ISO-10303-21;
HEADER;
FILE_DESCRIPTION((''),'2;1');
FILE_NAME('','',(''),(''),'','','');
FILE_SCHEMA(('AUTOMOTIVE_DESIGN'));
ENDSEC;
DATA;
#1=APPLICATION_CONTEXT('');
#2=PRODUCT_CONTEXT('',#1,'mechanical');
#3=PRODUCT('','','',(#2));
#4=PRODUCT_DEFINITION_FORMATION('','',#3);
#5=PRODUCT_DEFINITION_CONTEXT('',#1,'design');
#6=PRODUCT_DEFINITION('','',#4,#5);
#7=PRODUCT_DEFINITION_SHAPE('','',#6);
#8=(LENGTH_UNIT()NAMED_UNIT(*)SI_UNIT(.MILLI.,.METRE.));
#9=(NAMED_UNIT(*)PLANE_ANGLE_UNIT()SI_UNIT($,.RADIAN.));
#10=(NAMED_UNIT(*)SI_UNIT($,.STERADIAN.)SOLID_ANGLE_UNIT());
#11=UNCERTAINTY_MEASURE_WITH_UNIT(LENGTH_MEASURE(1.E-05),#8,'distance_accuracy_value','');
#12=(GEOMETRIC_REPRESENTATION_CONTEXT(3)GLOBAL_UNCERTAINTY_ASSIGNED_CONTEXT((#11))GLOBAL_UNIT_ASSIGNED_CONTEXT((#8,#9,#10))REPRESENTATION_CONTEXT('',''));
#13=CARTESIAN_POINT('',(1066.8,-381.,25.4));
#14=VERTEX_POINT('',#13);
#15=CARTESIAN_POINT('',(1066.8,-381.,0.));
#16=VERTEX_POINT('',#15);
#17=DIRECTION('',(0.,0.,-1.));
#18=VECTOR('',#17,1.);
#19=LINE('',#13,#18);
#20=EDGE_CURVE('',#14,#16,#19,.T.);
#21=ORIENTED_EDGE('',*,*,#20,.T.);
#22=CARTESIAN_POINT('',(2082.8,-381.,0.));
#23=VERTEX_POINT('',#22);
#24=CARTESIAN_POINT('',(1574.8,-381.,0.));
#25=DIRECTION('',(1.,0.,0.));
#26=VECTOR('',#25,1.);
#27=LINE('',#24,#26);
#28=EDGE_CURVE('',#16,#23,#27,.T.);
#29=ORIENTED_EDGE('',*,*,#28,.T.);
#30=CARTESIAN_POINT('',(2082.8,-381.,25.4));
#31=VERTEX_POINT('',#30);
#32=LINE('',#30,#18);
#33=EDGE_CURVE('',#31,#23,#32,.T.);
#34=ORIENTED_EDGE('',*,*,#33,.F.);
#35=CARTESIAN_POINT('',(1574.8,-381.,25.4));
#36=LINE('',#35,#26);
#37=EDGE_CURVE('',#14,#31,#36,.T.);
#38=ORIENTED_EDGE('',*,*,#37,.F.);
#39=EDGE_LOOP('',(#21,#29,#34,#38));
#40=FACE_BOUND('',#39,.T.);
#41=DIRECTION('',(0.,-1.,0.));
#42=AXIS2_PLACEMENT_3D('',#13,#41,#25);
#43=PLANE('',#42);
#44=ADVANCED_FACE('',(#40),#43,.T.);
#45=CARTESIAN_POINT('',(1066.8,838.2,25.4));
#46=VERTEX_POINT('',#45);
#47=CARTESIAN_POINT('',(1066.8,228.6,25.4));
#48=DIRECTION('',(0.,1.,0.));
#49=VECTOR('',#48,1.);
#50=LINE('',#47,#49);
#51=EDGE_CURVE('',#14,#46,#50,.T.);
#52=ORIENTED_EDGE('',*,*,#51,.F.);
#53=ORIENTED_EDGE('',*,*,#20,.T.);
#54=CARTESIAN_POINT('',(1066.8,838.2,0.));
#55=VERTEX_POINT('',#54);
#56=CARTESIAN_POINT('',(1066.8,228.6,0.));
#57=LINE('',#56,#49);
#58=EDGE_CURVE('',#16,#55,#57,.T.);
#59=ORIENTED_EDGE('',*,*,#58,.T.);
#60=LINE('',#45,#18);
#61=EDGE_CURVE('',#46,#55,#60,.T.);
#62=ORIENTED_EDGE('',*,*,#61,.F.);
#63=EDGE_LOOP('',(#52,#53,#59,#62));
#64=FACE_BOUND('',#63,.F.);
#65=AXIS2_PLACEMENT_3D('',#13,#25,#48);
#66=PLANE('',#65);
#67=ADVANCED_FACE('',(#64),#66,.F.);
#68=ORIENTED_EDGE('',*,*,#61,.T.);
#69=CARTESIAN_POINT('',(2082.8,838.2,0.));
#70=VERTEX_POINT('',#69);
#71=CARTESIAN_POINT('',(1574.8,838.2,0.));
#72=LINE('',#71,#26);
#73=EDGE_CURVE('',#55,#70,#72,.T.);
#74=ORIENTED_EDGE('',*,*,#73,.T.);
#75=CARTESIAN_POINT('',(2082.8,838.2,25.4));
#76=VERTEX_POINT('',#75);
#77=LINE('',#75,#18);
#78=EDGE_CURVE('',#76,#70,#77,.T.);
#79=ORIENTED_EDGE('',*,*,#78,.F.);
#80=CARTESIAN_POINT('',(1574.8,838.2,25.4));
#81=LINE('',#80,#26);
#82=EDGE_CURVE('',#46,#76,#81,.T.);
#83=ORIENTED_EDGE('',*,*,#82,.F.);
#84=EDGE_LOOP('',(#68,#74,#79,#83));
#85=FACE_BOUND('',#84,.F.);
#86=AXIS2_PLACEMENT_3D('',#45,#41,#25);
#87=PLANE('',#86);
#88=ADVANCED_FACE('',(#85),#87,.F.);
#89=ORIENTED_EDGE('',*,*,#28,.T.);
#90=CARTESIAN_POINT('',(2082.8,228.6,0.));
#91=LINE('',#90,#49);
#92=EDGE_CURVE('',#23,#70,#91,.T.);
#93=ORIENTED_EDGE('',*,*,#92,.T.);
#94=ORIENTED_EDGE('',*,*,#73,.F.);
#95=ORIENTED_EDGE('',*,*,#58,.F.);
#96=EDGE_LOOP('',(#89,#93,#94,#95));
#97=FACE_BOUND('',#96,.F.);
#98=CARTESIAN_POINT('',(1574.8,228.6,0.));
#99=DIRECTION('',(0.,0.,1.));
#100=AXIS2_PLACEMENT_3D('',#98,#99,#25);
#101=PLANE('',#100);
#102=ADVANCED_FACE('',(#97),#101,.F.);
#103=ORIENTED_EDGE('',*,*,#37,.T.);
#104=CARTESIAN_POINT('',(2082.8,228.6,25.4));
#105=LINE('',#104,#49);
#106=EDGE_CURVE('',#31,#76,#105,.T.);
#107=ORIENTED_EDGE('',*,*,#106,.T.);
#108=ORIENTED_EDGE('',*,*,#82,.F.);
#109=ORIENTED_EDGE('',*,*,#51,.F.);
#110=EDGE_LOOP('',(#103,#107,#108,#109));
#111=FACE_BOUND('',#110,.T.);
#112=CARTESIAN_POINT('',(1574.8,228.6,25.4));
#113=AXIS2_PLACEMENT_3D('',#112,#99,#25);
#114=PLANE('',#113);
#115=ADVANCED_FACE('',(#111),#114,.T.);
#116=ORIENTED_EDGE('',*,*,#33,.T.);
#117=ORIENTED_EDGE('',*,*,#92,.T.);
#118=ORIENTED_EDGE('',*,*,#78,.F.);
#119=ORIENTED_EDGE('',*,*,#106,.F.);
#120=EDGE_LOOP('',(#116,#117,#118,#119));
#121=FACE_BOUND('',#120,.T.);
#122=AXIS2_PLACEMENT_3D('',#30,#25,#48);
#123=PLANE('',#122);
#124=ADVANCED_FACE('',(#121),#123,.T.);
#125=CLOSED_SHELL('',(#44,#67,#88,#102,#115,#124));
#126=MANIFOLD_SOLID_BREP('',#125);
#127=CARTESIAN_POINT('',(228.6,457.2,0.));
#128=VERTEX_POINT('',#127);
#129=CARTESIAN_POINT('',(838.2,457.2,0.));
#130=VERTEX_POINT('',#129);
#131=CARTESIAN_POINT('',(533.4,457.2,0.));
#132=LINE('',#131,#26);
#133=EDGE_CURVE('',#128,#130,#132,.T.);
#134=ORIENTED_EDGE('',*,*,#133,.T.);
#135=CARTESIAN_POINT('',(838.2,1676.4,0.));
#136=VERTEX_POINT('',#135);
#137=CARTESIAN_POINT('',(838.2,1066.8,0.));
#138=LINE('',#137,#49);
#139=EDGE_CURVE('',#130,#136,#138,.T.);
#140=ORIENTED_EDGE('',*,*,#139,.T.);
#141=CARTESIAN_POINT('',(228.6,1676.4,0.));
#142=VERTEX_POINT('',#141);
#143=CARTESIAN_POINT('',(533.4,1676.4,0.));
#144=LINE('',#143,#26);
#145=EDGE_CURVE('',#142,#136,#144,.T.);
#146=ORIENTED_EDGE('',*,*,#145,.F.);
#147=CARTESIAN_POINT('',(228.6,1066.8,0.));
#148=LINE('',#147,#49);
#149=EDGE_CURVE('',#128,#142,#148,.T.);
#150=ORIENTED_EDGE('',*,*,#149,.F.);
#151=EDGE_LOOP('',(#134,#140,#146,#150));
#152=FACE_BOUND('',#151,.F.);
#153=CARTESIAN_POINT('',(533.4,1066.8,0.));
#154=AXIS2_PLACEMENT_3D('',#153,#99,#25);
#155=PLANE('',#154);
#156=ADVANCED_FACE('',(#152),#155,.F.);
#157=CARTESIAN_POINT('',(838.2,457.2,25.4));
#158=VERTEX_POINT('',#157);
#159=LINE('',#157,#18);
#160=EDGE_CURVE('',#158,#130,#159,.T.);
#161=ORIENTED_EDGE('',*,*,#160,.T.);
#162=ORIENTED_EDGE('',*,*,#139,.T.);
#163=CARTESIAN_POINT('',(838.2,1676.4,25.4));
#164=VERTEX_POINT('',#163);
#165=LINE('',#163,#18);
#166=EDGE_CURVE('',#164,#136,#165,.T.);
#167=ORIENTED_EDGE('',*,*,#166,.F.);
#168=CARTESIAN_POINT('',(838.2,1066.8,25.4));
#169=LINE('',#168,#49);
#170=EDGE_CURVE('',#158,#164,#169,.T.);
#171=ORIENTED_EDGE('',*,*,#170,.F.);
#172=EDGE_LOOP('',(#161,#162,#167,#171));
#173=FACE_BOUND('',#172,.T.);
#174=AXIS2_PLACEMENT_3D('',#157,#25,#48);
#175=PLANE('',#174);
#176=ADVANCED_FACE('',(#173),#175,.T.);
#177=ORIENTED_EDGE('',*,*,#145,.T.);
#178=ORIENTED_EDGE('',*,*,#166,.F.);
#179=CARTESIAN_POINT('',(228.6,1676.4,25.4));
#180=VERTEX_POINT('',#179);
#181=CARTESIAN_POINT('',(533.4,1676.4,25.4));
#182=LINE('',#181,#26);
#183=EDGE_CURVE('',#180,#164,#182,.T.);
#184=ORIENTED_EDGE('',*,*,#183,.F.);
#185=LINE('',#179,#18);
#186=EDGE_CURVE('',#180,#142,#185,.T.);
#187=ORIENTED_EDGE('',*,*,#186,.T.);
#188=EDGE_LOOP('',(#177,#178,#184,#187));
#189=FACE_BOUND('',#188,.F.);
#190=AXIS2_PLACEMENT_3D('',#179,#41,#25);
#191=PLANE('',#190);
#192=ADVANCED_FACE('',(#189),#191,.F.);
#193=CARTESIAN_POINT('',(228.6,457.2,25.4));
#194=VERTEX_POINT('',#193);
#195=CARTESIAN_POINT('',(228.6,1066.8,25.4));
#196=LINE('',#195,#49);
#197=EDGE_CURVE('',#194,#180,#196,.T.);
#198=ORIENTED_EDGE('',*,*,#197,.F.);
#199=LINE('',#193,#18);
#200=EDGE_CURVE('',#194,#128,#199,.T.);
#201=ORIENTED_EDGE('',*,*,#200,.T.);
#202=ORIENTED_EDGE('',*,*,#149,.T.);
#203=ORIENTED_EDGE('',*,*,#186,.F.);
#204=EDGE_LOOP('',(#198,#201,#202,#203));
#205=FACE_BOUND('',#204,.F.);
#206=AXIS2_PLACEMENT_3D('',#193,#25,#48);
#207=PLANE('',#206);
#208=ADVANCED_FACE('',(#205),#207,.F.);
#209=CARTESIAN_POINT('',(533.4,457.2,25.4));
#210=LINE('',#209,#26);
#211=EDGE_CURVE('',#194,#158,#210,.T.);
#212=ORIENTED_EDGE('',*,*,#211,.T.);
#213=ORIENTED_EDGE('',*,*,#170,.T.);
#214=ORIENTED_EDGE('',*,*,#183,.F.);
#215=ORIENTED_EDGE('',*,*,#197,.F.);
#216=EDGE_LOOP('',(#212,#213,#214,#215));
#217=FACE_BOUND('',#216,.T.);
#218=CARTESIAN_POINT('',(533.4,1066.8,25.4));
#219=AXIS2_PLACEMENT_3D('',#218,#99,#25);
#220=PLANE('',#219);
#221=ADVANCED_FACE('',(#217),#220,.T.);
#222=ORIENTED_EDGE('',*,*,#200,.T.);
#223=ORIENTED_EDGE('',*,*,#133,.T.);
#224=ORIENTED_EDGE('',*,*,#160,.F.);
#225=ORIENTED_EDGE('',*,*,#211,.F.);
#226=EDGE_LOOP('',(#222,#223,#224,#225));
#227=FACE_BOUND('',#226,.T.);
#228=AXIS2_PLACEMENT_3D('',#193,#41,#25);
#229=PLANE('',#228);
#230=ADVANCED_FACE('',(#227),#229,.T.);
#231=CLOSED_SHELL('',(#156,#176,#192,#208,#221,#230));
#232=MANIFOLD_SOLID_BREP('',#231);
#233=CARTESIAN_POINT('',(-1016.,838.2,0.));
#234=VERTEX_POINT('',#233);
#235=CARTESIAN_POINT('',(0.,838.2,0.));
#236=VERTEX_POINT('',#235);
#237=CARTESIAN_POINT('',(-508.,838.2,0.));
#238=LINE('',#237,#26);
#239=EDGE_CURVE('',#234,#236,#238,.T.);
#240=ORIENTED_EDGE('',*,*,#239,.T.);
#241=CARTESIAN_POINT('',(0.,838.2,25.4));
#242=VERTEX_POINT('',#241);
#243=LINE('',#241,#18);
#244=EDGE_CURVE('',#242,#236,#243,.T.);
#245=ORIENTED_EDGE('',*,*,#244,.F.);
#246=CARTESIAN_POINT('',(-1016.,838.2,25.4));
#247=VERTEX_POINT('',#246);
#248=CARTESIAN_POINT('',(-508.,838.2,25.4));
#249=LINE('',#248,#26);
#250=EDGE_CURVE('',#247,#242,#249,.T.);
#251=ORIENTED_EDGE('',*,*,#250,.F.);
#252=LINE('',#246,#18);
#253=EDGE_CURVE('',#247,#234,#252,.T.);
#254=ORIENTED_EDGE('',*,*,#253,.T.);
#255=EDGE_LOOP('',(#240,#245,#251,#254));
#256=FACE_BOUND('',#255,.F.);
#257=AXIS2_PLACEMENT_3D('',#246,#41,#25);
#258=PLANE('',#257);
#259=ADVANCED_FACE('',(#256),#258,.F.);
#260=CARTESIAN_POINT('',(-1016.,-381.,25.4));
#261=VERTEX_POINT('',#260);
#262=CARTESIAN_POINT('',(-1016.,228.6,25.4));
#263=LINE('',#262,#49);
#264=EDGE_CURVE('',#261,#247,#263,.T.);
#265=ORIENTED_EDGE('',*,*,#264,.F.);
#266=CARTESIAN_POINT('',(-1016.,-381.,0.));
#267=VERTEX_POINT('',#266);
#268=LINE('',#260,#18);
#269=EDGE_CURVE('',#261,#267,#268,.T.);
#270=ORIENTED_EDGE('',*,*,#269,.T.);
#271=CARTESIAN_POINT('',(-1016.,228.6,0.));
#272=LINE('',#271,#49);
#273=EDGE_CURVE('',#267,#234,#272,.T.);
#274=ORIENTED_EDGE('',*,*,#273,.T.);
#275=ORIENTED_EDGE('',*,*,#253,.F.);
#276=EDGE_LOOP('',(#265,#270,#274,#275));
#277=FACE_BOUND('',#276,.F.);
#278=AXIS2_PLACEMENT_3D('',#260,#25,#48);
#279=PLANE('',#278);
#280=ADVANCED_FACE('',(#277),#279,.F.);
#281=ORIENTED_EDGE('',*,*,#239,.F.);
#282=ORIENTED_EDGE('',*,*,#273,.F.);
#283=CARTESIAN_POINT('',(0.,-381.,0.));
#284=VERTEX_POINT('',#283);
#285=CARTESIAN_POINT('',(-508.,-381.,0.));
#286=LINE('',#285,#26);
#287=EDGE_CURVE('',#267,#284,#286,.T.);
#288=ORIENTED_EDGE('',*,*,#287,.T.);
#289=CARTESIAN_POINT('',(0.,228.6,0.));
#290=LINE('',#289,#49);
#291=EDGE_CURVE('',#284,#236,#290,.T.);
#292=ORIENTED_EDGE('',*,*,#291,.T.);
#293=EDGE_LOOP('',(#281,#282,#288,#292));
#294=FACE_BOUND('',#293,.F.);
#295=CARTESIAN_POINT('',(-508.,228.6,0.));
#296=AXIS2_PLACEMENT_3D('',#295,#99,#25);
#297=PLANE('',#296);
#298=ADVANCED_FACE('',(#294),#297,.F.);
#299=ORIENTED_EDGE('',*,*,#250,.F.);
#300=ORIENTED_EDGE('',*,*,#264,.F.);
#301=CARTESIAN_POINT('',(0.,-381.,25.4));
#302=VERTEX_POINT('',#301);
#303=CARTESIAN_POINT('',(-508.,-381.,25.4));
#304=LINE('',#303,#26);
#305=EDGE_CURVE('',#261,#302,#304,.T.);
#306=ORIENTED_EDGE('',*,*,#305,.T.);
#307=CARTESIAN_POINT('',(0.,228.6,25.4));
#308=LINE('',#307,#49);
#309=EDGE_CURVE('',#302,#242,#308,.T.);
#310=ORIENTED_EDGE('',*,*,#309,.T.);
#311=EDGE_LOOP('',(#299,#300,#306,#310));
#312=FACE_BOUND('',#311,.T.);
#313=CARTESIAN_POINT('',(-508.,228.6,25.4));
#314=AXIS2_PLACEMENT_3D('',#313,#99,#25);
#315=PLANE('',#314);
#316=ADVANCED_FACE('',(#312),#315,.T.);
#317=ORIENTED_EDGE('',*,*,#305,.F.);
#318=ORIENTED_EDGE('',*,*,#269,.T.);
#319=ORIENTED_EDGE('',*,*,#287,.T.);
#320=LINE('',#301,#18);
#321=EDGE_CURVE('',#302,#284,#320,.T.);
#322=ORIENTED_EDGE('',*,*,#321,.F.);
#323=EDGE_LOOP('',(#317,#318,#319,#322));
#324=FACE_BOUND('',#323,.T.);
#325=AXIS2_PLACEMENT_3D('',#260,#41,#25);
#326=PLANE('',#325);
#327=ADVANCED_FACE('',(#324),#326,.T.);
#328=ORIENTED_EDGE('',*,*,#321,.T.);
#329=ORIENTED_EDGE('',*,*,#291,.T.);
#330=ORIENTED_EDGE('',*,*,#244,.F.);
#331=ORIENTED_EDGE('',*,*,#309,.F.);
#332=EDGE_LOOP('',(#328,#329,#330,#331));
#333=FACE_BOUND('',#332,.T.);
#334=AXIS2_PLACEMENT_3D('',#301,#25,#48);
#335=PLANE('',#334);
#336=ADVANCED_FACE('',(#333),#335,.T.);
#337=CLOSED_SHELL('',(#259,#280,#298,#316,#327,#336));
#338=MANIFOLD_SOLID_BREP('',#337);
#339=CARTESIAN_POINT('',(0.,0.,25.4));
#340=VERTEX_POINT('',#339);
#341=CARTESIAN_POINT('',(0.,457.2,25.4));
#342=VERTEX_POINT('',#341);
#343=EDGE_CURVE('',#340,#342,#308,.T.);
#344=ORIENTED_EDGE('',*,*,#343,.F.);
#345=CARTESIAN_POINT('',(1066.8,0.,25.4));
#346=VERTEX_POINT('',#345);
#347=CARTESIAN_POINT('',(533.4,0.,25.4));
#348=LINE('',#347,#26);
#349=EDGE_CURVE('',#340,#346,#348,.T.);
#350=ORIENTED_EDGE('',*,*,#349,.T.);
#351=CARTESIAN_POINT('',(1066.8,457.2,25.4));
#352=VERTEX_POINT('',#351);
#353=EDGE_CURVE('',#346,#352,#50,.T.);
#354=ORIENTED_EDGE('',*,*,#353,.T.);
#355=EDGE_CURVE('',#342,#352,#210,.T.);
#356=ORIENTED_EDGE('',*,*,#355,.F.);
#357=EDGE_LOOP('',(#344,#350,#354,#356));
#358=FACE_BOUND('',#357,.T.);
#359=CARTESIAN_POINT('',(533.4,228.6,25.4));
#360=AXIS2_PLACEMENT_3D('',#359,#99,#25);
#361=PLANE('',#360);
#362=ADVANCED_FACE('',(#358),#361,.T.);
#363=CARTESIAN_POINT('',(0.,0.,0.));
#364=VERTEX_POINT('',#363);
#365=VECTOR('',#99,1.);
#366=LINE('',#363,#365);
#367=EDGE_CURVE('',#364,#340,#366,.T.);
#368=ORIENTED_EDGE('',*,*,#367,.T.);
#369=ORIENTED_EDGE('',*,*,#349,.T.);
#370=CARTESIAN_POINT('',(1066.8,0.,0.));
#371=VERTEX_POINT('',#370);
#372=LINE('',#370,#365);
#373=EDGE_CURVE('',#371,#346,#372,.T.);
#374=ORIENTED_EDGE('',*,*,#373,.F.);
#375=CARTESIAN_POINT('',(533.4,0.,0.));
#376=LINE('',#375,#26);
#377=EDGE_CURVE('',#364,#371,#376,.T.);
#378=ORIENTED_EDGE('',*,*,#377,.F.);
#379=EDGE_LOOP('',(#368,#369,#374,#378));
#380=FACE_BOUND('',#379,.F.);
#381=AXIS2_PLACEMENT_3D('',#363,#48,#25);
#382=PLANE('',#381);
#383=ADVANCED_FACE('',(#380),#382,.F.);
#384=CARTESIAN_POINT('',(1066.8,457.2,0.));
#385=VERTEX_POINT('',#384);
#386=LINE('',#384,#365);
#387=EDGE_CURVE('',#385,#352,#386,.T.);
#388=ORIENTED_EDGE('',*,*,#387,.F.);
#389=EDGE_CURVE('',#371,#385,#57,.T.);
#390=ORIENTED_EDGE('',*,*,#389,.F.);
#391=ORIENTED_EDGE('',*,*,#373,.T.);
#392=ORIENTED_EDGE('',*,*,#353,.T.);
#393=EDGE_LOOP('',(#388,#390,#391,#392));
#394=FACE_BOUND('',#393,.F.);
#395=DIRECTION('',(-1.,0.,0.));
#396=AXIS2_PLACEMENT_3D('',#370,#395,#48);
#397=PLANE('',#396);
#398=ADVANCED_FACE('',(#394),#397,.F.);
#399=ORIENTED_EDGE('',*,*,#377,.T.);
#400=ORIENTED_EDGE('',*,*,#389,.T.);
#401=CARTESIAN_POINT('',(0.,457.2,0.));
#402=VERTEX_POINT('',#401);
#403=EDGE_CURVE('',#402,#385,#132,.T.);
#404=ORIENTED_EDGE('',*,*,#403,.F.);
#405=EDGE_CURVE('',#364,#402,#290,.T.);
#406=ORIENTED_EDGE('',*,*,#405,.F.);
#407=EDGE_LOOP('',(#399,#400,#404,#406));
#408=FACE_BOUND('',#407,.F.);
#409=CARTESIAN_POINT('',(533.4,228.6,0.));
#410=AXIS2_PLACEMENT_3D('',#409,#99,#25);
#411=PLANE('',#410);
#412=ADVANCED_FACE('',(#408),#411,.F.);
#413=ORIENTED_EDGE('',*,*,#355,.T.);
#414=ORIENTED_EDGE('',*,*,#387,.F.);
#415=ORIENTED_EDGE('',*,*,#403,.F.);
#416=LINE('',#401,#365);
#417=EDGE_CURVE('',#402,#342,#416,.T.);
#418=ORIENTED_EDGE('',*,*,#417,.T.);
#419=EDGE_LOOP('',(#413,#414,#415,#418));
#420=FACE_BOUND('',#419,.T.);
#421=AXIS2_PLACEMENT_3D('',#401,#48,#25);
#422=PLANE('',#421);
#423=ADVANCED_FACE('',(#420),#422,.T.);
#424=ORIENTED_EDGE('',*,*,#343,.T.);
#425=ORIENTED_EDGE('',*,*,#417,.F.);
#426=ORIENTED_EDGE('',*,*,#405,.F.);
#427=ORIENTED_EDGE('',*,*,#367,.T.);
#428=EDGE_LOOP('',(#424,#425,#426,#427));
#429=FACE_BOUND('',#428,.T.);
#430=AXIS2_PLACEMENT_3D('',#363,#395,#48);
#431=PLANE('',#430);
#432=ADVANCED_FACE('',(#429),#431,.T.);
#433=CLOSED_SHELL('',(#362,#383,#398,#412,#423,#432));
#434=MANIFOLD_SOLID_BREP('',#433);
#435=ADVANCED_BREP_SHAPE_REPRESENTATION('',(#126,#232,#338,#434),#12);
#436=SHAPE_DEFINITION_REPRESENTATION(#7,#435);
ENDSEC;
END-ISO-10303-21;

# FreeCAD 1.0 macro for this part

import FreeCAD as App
import Part
import Sketcher

V = App.Vector
Q = App.Units.Quantity


def add_polygon(sketch, points):
    """Adds a closed chain of lines whose ends are joined by coincident constraints."""
    first, n = sketch.GeometryCount, len(points)
    for a, b in zip(points, points[1:] + points[:1]):
        sketch.addGeometry(Part.LineSegment(App.Vector(*a, 0), App.Vector(*b, 0)), False)
    for i in range(n):
        sketch.addConstraint(Sketcher.Constraint("Coincident", first + i, 2, first + (i + 1) % n, 1))

doc = App.newDocument("Part")
params = doc.addObject("Spreadsheet::Sheet", "Params")
for row, (alias, value) in enumerate([
    ("sketch1_width", "42 in"),
    ("sketch1_height", "18 in"),
    ("pad1_length", "1 in"),
    ("sketch2_width", "40 in"),
    ("sketch2_height", "48 in"),
    ("pad2_length", "1 in"),
    ("sketch3_width", "24 in"),
    ("sketch3_height", "48 in"),
    ("pad3_length", "1 in"),
], start=1):
    params.set(f"A{row}", alias)
    params.set(f"B{row}", "=" + value)
    params.setAlias(f"B{row}", alias)

body = doc.addObject("PartDesign::Body", "Body")

sketch1 = body.newObject("Sketcher::SketchObject", "Sketch")
sketch1.AttachmentSupport = (doc.getObject("XY_Plane"), [""])
sketch1.MapMode = "FlatFace"
add_polygon(sketch1, [(0, 457), (0, 0), (1067, 0), (1067, 457)])
sketch1.addConstraint([
    Sketcher.Constraint("Vertical", 0),
    Sketcher.Constraint("Horizontal", 1),
    Sketcher.Constraint("Vertical", 2),
    Sketcher.Constraint("Horizontal", 3),
    Sketcher.Constraint("Coincident", 0, 2, -1, 1),
    Sketcher.Constraint("DistanceX", 1, 1, 1, 2, Q("42 in")),
    Sketcher.Constraint("DistanceY", 0, 2, 0, 1, Q("18 in")),
])
sketch1.setExpression("Constraints[9]", "Params.sketch1_width")
sketch1.setExpression("Constraints[10]", "Params.sketch1_height")
pad1 = body.newObject("PartDesign::Pad", "Pad")
pad1.Profile = sketch1
pad1.setExpression("Length", "Params.pad1_length")
body2 = doc.addObject("PartDesign::Body", "Body001")
body2.AllowCompound = True

sketch2 = body2.newObject("Sketcher::SketchObject", "Sketch001")
sketch2.AttachmentSupport = (doc.getObject("XY_Plane001"), [""])
sketch2.MapMode = "FlatFace"
sketch2.AttachmentOffset = App.Placement(V(0, 0, 1 * 25.4), App.Rotation())
add_polygon(sketch2, [(-1016, 838), (-1016, -381), (0, -381), (0, 838)])
add_polygon(sketch2, [(1067, 838), (1067, -381), (2083, -381), (2083, 838)])
sketch2.addConstraint([
    Sketcher.Constraint("Vertical", 0),
    Sketcher.Constraint("Horizontal", 1),
    Sketcher.Constraint("Vertical", 2),
    Sketcher.Constraint("Horizontal", 3),
    Sketcher.Constraint("Vertical", 4),
    Sketcher.Constraint("Horizontal", 5),
    Sketcher.Constraint("Vertical", 6),
    Sketcher.Constraint("Horizontal", 7),
    Sketcher.Constraint("PointOnObject", 1, 2, -2),
    Sketcher.Constraint("Horizontal", 1, 2, 4, 2),
    Sketcher.Constraint("Horizontal", 3, 2, 6, 2),
    Sketcher.Constraint("Equal", 3, 5),
    Sketcher.Constraint("DistanceX", 1, 1, 1, 2, Q("40 in")),
    Sketcher.Constraint("DistanceY", 0, 2, 0, 1, Q("48 in")),
    Sketcher.Constraint("DistanceY", 0, 2, -1, 1, Q("15 in")),
    Sketcher.Constraint("DistanceX", -1, 1, 4, 2, Q("42 in")),
])
sketch2.setExpression("Constraints[20]", "Params.sketch2_width")
sketch2.setExpression("Constraints[21]", "Params.sketch2_height")
pad2 = body2.newObject("PartDesign::Pad", "Pad001")
pad2.Profile = sketch2
pad2.setExpression("Length", "Params.pad2_length")
pad2.Reversed = True
body3 = doc.addObject("PartDesign::Body", "Body002")

sketch3 = body3.newObject("Sketcher::SketchObject", "Sketch002")
sketch3.AttachmentSupport = (doc.getObject("XY_Plane002"), [""])
sketch3.MapMode = "FlatFace"
sketch3.AttachmentOffset = App.Placement(V(0, 0, 1 * 25.4), App.Rotation())
add_polygon(sketch3, [(229, 1676), (229, 457), (838, 457), (838, 1676)])
sketch3.addConstraint([
    Sketcher.Constraint("Vertical", 0),
    Sketcher.Constraint("Horizontal", 1),
    Sketcher.Constraint("Vertical", 2),
    Sketcher.Constraint("Horizontal", 3),
    Sketcher.Constraint("DistanceX", 1, 1, 1, 2, Q("24 in")),
    Sketcher.Constraint("DistanceY", 0, 2, 0, 1, Q("48 in")),
    Sketcher.Constraint("DistanceX", -1, 1, 0, 2, Q("9 in")),
    Sketcher.Constraint("DistanceY", -1, 1, 0, 2, Q("18 in")),
])
sketch3.setExpression("Constraints[8]", "Params.sketch3_width")
sketch3.setExpression("Constraints[9]", "Params.sketch3_height")
pad3 = body3.newObject("PartDesign::Pad", "Pad002")
pad3.Profile = sketch3
pad3.setExpression("Length", "Params.pad3_length")
pad3.Reversed = True

doc.recompute()
